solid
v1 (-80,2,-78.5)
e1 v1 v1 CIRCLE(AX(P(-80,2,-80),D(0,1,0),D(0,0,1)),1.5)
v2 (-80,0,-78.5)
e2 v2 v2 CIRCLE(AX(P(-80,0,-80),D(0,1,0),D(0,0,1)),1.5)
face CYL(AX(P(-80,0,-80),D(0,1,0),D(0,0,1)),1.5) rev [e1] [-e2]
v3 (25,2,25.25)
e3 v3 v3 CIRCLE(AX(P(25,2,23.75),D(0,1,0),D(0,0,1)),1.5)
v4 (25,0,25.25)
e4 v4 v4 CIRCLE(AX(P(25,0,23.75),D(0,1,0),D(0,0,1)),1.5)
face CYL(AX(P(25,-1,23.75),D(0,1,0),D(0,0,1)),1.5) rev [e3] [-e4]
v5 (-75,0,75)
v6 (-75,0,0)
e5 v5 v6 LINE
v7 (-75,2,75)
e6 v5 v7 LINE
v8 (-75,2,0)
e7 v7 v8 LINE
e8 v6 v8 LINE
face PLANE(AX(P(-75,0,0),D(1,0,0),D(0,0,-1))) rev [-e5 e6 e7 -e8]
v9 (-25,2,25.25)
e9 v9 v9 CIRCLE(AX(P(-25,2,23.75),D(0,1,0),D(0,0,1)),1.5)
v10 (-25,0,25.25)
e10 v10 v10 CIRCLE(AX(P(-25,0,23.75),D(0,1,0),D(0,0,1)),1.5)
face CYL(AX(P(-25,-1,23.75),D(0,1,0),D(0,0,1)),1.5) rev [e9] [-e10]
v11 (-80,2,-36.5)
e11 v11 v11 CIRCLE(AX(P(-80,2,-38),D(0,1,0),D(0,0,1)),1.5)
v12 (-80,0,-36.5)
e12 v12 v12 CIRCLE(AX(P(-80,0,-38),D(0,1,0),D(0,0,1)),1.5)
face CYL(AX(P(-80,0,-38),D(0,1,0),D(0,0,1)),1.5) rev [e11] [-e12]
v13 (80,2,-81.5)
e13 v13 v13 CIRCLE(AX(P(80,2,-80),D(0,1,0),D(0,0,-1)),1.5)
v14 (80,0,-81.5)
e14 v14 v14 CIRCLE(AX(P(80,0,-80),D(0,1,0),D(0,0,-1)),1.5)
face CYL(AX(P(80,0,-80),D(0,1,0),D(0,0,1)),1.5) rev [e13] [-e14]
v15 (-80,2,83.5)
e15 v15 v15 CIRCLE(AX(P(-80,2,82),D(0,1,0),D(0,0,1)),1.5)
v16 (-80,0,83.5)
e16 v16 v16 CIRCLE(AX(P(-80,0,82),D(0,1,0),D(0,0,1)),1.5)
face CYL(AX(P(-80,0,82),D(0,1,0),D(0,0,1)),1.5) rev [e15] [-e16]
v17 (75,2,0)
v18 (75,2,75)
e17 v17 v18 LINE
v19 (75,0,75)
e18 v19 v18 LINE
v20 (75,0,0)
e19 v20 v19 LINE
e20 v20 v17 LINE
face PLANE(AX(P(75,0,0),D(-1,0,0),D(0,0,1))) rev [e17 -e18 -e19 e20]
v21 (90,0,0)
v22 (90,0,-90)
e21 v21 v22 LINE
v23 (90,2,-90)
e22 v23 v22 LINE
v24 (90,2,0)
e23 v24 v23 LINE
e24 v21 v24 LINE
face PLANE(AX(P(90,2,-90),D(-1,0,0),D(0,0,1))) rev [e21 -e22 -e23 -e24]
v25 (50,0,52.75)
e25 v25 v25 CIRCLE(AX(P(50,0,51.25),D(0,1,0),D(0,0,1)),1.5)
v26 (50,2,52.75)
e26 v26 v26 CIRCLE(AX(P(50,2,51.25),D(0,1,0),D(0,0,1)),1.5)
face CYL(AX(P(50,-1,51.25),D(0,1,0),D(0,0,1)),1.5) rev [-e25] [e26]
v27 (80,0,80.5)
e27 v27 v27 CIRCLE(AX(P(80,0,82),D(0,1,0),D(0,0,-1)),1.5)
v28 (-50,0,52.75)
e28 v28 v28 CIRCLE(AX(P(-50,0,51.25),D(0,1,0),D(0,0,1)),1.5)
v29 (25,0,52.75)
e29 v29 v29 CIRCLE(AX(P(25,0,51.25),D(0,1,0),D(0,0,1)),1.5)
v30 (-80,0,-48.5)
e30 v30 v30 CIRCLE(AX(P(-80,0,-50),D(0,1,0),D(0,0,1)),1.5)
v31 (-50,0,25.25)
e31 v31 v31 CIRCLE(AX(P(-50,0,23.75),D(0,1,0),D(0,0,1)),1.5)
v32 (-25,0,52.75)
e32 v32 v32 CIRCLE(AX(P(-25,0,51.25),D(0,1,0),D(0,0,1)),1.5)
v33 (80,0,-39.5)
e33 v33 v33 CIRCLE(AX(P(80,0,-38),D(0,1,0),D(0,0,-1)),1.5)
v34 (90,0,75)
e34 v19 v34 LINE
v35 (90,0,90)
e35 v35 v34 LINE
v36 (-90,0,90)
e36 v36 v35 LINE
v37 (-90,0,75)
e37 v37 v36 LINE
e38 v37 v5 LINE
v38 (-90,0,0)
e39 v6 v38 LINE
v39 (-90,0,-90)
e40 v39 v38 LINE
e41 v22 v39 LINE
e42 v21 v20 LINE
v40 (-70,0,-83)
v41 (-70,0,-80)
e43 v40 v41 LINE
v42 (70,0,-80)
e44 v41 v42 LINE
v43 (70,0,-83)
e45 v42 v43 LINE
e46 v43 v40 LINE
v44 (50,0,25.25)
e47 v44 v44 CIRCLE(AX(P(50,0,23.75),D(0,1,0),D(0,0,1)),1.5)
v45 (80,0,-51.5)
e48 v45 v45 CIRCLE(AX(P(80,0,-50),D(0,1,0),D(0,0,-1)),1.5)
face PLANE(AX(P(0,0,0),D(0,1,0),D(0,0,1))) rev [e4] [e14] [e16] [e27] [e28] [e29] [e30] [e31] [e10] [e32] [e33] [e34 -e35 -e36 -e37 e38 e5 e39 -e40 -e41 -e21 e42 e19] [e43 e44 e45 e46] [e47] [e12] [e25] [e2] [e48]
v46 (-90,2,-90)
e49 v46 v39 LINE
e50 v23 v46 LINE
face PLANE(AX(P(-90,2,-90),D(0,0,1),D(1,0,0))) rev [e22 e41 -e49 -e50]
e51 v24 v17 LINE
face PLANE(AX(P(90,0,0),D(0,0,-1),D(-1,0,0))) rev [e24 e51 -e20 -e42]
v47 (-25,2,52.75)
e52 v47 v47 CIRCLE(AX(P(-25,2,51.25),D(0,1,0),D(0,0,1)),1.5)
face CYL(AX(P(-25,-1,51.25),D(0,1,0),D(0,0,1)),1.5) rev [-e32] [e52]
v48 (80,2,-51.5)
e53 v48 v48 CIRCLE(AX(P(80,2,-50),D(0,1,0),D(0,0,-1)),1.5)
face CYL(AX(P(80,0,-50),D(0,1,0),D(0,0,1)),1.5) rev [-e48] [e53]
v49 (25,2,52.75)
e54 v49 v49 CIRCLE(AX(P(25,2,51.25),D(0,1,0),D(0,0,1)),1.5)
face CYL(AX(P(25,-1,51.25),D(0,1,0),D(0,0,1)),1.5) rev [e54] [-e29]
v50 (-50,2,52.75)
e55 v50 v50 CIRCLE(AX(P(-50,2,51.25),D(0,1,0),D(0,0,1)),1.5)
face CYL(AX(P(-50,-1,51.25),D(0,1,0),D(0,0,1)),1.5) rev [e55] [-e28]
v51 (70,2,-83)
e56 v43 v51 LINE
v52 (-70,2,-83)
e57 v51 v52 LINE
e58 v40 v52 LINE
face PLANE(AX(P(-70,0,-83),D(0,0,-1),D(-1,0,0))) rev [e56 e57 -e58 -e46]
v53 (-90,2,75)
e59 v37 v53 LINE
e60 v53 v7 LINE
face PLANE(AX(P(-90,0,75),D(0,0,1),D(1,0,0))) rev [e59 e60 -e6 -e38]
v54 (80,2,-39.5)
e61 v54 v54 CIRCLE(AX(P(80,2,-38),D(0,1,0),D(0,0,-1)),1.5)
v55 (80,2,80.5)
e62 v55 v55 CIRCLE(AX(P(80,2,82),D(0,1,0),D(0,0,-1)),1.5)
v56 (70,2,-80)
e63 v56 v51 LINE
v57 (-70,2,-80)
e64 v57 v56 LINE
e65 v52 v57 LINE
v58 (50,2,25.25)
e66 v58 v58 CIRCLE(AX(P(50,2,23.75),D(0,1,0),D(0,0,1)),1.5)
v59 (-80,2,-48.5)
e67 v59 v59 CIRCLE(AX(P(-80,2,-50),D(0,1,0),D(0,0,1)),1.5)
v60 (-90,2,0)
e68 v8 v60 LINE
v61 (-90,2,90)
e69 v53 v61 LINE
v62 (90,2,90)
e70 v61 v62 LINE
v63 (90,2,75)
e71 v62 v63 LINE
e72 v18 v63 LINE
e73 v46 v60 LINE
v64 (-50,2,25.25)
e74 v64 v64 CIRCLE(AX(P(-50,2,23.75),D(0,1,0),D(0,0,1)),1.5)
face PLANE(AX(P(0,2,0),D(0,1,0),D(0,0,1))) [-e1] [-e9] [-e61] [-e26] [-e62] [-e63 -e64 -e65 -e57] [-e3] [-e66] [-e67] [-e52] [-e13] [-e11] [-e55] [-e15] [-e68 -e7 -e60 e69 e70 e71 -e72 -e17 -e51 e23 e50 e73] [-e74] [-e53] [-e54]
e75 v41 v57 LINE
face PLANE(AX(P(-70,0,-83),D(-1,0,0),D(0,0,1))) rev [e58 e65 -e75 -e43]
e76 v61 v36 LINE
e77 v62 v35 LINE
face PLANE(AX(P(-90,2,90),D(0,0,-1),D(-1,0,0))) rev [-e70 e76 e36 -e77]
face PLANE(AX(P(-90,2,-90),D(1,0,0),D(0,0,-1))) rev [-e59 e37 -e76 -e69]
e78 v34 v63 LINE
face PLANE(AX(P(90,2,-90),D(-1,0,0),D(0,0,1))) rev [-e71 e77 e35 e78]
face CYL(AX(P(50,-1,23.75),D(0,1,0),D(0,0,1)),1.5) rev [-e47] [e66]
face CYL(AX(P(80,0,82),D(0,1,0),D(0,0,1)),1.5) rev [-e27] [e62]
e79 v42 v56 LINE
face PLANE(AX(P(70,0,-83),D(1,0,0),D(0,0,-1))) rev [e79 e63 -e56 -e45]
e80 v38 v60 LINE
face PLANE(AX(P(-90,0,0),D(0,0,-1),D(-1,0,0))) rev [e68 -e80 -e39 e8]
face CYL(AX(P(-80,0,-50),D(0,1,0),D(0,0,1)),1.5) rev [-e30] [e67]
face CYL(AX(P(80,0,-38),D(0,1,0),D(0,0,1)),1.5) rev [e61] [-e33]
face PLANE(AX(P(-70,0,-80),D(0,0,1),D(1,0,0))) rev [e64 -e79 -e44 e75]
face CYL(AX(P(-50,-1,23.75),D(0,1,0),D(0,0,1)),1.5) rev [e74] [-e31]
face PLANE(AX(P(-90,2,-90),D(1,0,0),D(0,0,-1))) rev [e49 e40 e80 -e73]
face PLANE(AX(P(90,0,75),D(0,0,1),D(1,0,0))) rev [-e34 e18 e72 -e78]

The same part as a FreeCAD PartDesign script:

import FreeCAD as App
import Part
import Sketcher
from FreeCAD import Vector

doc = App.newDocument("Part")
body = doc.addObject("PartDesign::Body", "Body")

# Sketch on XZ plane
sketch1 = body.newObject("Sketcher::SketchObject", "Sketch")
sketch1.AttachmentSupport = (doc.getObject("XZ_Plane"), [""])
sketch1.MapMode = "FlatFace"
sketch1.addGeometry([
    Part.LineSegment(Vector(-90, -90, 0), Vector(-90, 90, 0)),
    Part.LineSegment(Vector(-90, 90, 0), Vector(90, 90, 0)),
    Part.LineSegment(Vector(90, 90, 0), Vector(90, -90, 0)),
    Part.LineSegment(Vector(90, -90, 0), Vector(-90, -90, 0)),
], False)
sketch1.addConstraint([
    Sketcher.Constraint("Coincident", 0, 2, 1, 1),
    Sketcher.Constraint("Coincident", 1, 2, 2, 1),
    Sketcher.Constraint("Coincident", 2, 2, 3, 1),
    Sketcher.Constraint("Coincident", 3, 2, 0, 1),
    Sketcher.Constraint("Vertical", 0),
    Sketcher.Constraint("Horizontal", 1),
    Sketcher.Constraint("Vertical", 2),
    Sketcher.Constraint("Horizontal", 3),
    Sketcher.Constraint("Symmetric", 0, 2, 2, 2, -1, 1),
    Sketcher.Constraint("Equal", 3, 0),
    Sketcher.Constraint("DistanceX", 1, 1, 1, 2, 180.0),
])
pad1 = body.newObject("PartDesign::Pad", "Pad")
pad1.Profile = sketch1
pad1.Length = 2
pad1.Reversed = True

# Sketch on XZ plane
sketch2 = body.newObject("Sketcher::SketchObject", "Sketch001")
sketch2.AttachmentSupport = (doc.getObject("XZ_Plane"), [""])
sketch2.MapMode = "FlatFace"
sketch2.AttachmentOffset = App.Placement(Vector(0, 0, -2), App.Rotation())
sketch2.addGeometry([
    Part.Circle(Vector(-80, -38, 0), Vector(0, 0, 1), 1.5),  # 0
    Part.Circle(Vector(-80, 82, 0), Vector(0, 0, 1), 1.5),  # 1
    Part.Circle(Vector(80, 82, 0), Vector(0, 0, 1), 1.5),  # 2
    Part.Circle(Vector(80, -38, 0), Vector(0, 0, 1), 1.5),  # 3
    Part.Circle(Vector(-80, -80, 0), Vector(0, 0, 1), 1.5),  # 4
    Part.Circle(Vector(-80, -50, 0), Vector(0, 0, 1), 1.5),  # 5
    Part.Circle(Vector(80, -50, 0), Vector(0, 0, 1), 1.5),  # 6
    Part.Circle(Vector(80, -80, 0), Vector(0, 0, 1), 1.5),  # 7
    Part.LineSegment(Vector(-90, 0, 0), Vector(-90, 75, 0)),  # 8
    Part.LineSegment(Vector(-90, 75, 0), Vector(-75, 75, 0)),  # 9
    Part.LineSegment(Vector(-75, 75, 0), Vector(-75, 0, 0)),  # 10
    Part.LineSegment(Vector(-75, 0, 0), Vector(-90, 0, 0)),  # 11
    Part.LineSegment(Vector(75, 0, 0), Vector(75, 75, 0)),  # 12
    Part.LineSegment(Vector(75, 75, 0), Vector(90, 75, 0)),  # 13
    Part.LineSegment(Vector(90, 75, 0), Vector(90, 0, 0)),  # 14
    Part.LineSegment(Vector(90, 0, 0), Vector(75, 0, 0)),  # 15
    Part.LineSegment(Vector(-70, -83, 0), Vector(-70, -80, 0)),  # 16
    Part.LineSegment(Vector(-70, -80, 0), Vector(70, -80, 0)),  # 17
    Part.LineSegment(Vector(70, -80, 0), Vector(70, -83, 0)),  # 18
    Part.LineSegment(Vector(70, -83, 0), Vector(-70, -83, 0)),  # 19
], False)
sketch2.addConstraint([
    Sketcher.Constraint("Coincident", 8, 2, 9, 1),
    Sketcher.Constraint("Coincident", 9, 2, 10, 1),
    Sketcher.Constraint("Coincident", 10, 2, 11, 1),
    Sketcher.Constraint("Coincident", 11, 2, 8, 1),
    Sketcher.Constraint("Coincident", 12, 2, 13, 1),
    Sketcher.Constraint("Coincident", 13, 2, 14, 1),
    Sketcher.Constraint("Coincident", 14, 2, 15, 1),
    Sketcher.Constraint("Coincident", 15, 2, 12, 1),
    Sketcher.Constraint("Coincident", 16, 2, 17, 1),
    Sketcher.Constraint("Coincident", 17, 2, 18, 1),
    Sketcher.Constraint("Coincident", 18, 2, 19, 1),
    Sketcher.Constraint("Coincident", 19, 2, 16, 1),
    Sketcher.Constraint("Vertical", 8),
    Sketcher.Constraint("Horizontal", 9),
    Sketcher.Constraint("Vertical", 10),
    Sketcher.Constraint("Horizontal", 11),
    Sketcher.Constraint("Vertical", 12),
    Sketcher.Constraint("Horizontal", 13),
    Sketcher.Constraint("Vertical", 14),
    Sketcher.Constraint("Horizontal", 15),
    Sketcher.Constraint("Vertical", 16),
    Sketcher.Constraint("Horizontal", 17),
    Sketcher.Constraint("Vertical", 18),
    Sketcher.Constraint("Horizontal", 19),
    Sketcher.Constraint("Equal", 0, 1),
    Sketcher.Constraint("Equal", 1, 2),
    Sketcher.Constraint("Equal", 2, 3),
    Sketcher.Constraint("Equal", 3, 4),
    Sketcher.Constraint("Equal", 4, 5),
    Sketcher.Constraint("Equal", 5, 6),
    Sketcher.Constraint("Equal", 6, 7),
    Sketcher.Constraint("Symmetric", 11, 2, 14, 2, -1, 1),
    Sketcher.Constraint("Symmetric", 1, 3, 2, 3, -2),
    Sketcher.Constraint("Symmetric", 0, 3, 3, 3, -2),
    Sketcher.Constraint("Symmetric", 5, 3, 6, 3, -2),
    Sketcher.Constraint("Symmetric", 4, 3, 7, 3, -2),
    Sketcher.Constraint("Symmetric", 9, 2, 12, 2, -2),
    Sketcher.Constraint("PointOnObject", 10, 2, -1),
    Sketcher.Constraint("Horizontal", 7, 3, 16, 2),
    Sketcher.Constraint("Vertical", 0, 3, 1, 3),
    Sketcher.Constraint("Vertical", 1, 3, 4, 3),
    Sketcher.Constraint("Vertical", 4, 3, 5, 3),
    Sketcher.Constraint("Diameter", 0, 3.0),
    Sketcher.Constraint("DistanceX", 9, 1, 9, 2, 15.0),
    Sketcher.Constraint("DistanceX", 17, 1, 17, 2, 140.0),
    Sketcher.Constraint("DistanceY", 8, 1, 8, 2, 75.0),
    Sketcher.Constraint("DistanceY", 16, 1, 16, 2, 3.0),
    Sketcher.Constraint("DistanceX", 0, 3, -1, 1, 80.0),
    Sketcher.Constraint("DistanceY", 0, 3, -1, 1, 38.0),
    Sketcher.Constraint("DistanceY", -1, 1, 1, 3, 82.0),
    Sketcher.Constraint("DistanceY", 4, 3, -1, 1, 80.0),
    Sketcher.Constraint("DistanceY", 5, 3, -1, 1, 50.0),
    Sketcher.Constraint("DistanceX", 8, 2, -1, 1, 90.0),
    Sketcher.Constraint("DistanceX", 16, 2, -1, 1, 70.0),
])
pocket1 = body.newObject("PartDesign::Pocket", "Pocket")
pocket1.Profile = sketch2
pocket1.Length = 2
pocket1.Reversed = True

# Sketch on XZ plane
sketch3 = body.newObject("Sketcher::SketchObject", "Sketch002")
sketch3.AttachmentSupport = (doc.getObject("XZ_Plane"), [""])
sketch3.MapMode = "FlatFace"
sketch3.AttachmentOffset = App.Placement(Vector(0, 0, -2), App.Rotation())
sketch3.addGeometry([
    Part.Circle(Vector(-50, 23.75, 0), Vector(0, 0, 1), 1.5),  # 0
    Part.Circle(Vector(-50, 51.25, 0), Vector(0, 0, 1), 1.5),  # 1
    Part.Circle(Vector(-25, 23.75, 0), Vector(0, 0, 1), 1.5),  # 2
    Part.Circle(Vector(-25, 51.25, 0), Vector(0, 0, 1), 1.5),  # 3
    Part.Circle(Vector(25, 23.75, 0), Vector(0, 0, 1), 1.5),  # 4
    Part.Circle(Vector(50, 23.75, 0), Vector(0, 0, 1), 1.5),  # 5
    Part.Circle(Vector(25, 51.25, 0), Vector(0, 0, 1), 1.5),  # 6
    Part.Circle(Vector(50, 51.25, 0), Vector(0, 0, 1), 1.5),  # 7
], False)
sketch3.addConstraint([
    Sketcher.Constraint("Equal", 0, 1),
    Sketcher.Constraint("Equal", 1, 2),
    Sketcher.Constraint("Equal", 2, 3),
    Sketcher.Constraint("Equal", 3, 4),
    Sketcher.Constraint("Equal", 4, 5),
    Sketcher.Constraint("Equal", 5, 6),
    Sketcher.Constraint("Equal", 6, 7),
    Sketcher.Constraint("Symmetric", 2, 3, 4, 3, -2),
    Sketcher.Constraint("Symmetric", 0, 3, 5, 3, -2),
    Sketcher.Constraint("Symmetric", 3, 3, 6, 3, -2),
    Sketcher.Constraint("Symmetric", 1, 3, 7, 3, -2),
    Sketcher.Constraint("Horizontal", 0, 3, 2, 3),
    Sketcher.Constraint("Horizontal", 1, 3, 3, 3),
    Sketcher.Constraint("Vertical", 0, 3, 1, 3),
    Sketcher.Constraint("Vertical", 2, 3, 3, 3),
    Sketcher.Constraint("Diameter", 0, 3.0),
    Sketcher.Constraint("DistanceX", 0, 3, -1, 1, 50.0),
    Sketcher.Constraint("DistanceX", 2, 3, -1, 1, 25.0),
    Sketcher.Constraint("DistanceY", 0, 3, 1, 3, 27.5),
    Sketcher.Constraint("DistanceY", -1, 1, 0, 3, 23.75),
])
pocket2 = body.newObject("PartDesign::Pocket", "Pocket001")
pocket2.Profile = sketch3
pocket2.Length = 3
pocket2.Reversed = True

doc.recompute()
